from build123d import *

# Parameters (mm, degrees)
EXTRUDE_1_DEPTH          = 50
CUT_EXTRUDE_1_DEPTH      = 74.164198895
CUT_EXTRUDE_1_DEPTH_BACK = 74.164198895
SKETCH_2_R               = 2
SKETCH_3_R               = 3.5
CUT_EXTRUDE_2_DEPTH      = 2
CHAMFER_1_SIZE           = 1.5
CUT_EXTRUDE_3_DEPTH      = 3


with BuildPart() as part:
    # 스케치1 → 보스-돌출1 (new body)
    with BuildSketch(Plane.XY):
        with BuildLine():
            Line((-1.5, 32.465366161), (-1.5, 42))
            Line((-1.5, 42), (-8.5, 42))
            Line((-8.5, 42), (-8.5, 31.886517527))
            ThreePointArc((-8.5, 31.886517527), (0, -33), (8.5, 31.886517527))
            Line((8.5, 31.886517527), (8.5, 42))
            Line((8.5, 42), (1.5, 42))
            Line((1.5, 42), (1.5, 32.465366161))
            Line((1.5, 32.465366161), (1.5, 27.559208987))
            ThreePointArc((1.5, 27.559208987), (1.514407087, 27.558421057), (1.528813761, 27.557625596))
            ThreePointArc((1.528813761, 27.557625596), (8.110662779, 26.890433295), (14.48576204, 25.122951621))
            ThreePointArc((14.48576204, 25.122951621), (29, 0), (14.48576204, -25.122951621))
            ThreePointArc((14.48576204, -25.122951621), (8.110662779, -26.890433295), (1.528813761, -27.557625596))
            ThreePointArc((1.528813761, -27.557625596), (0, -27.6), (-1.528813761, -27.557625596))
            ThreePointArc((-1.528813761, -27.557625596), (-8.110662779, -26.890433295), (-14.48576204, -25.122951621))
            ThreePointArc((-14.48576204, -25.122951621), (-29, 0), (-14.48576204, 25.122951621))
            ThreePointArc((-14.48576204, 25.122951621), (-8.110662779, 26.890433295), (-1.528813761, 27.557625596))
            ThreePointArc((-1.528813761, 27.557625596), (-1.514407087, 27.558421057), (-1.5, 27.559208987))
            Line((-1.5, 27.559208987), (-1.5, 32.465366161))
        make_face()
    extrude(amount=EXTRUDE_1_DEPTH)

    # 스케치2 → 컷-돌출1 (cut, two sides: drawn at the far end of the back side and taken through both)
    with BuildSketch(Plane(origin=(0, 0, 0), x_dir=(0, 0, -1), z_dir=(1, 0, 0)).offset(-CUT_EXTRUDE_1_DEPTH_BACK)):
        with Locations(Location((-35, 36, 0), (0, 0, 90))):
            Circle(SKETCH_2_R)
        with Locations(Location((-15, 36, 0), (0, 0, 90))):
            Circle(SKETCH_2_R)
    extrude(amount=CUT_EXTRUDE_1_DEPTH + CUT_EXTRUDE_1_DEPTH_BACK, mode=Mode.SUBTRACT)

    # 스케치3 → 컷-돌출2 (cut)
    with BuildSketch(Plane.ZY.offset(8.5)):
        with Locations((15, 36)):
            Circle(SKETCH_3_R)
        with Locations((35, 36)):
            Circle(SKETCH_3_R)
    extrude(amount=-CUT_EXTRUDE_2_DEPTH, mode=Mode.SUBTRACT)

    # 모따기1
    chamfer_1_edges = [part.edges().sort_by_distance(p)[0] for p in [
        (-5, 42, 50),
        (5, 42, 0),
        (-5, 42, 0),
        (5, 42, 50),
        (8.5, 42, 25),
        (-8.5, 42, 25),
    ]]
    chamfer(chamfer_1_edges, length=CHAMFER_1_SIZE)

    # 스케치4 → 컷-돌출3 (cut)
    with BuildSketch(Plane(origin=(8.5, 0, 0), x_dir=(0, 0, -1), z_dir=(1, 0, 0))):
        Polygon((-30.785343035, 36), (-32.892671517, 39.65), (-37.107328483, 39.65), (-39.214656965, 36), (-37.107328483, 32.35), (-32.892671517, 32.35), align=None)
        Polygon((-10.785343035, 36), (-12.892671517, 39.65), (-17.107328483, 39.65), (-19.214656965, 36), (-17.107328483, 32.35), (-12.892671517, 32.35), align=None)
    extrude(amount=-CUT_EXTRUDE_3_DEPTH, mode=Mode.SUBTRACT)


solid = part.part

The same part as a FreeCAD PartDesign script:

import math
import FreeCAD as App
import Part
import Sketcher

V = App.Vector
Q = App.Units.Quantity


def edges_at(feature, points):
    """Names of the edges that pass closest to the given points."""
    edges = feature.Shape.Edges
    near = lambda p: min(range(len(edges)), key=lambda i: edges[i].distToShape(Part.Vertex(*p))[0])
    return sorted({f"Edge{near(p) + 1}" for p in points})


def add_polygon(sketch, points):
    """Adds a closed chain of lines whose ends are joined by coincident constraints."""
    first, n = sketch.GeometryCount, len(points)
    for a, b in zip(points, points[1:] + points[:1]):
        sketch.addGeometry(Part.LineSegment(App.Vector(*a, 0), App.Vector(*b, 0)), False)
    for i in range(n):
        sketch.addConstraint(Sketcher.Constraint("Coincident", first + i, 2, first + (i + 1) % n, 1))

doc = App.newDocument("Part")
body = doc.addObject("PartDesign::Body", "Body")

sketch1 = body.newObject("Sketcher::SketchObject", "Sketch")
sketch1.AttachmentSupport = (doc.getObject("XY_Plane"), [""])
sketch1.MapMode = "FlatFace"
sketch1.addGeometry([
    Part.LineSegment(V(-1.5, 42, 0), V(-8.5, 42, 0)),
    Part.LineSegment(V(-8.5, 42, 0), V(-8.5, 31.886518, 0)),
    Part.ArcOfCircle(Part.Circle(V(0, 0, 0), V(0, 0, 1), 33), math.radians(104.926265), math.radians(435.073735)),
    Part.LineSegment(V(8.5, 31.886518, 0), V(8.5, 42, 0)),
    Part.LineSegment(V(8.5, 42, 0), V(1.5, 42, 0)),
    Part.LineSegment(V(1.5, 42, 0), V(1.5, 27.559209, 0)),
    Part.ArcOfCircle(Part.Circle(V(-0.000124, -0.002262, 0), V(0, 0, 1), 27.602265), math.radians(86.824661), math.radians(86.884562)),
    Part.ArcOfCircle(Part.Circle(V(0.891328, -11.52972, 0), V(0, 0, 1), 39.092544), math.radians(69.65024), math.radians(89.065631)),
    Part.ArcOfCircle(Part.Circle(V(0, 0, 0), V(0, 0, 1), 29), math.radians(-60.032477), math.radians(60.032477)),
    Part.ArcOfCircle(Part.Circle(V(0.891328, 11.52972, 0), V(0, 0, 1), 39.092544), math.radians(-89.065631), math.radians(-69.65024)),
    Part.ArcOfCircle(Part.Circle(V(0, 0, 0), V(0, 0, 1), 27.6), math.radians(-93.175342), math.radians(-86.824658)),
    Part.ArcOfCircle(Part.Circle(V(-0.891328, 11.52972, 0), V(0, 0, 1), 39.092544), math.radians(-110.34976), math.radians(-90.934369)),
    Part.ArcOfCircle(Part.Circle(V(0, 0, 0), V(0, 0, 1), 29), math.radians(119.967523), math.radians(240.032477)),
    Part.ArcOfCircle(Part.Circle(V(-0.891328, -11.52972, 0), V(0, 0, 1), 39.092544), math.radians(90.934369), math.radians(110.34976)),
    Part.ArcOfCircle(Part.Circle(V(0.000124, -0.002262, 0), V(0, 0, 1), 27.602265), math.radians(93.115438), math.radians(93.175339)),
    Part.LineSegment(V(-1.5, 27.559209, 0), V(-1.5, 42, 0)),
], False)
sketch1.addConstraint([
    Sketcher.Constraint("Coincident", 0, 2, 1, 1),
    Sketcher.Constraint("Coincident", 1, 2, 2, 1),
    Sketcher.Constraint("Coincident", 2, 2, 3, 1),
    Sketcher.Constraint("Coincident", 3, 2, 4, 1),
    Sketcher.Constraint("Coincident", 4, 2, 5, 1),
    Sketcher.Constraint("Coincident", 5, 2, 6, 2),
    Sketcher.Constraint("Coincident", 6, 1, 7, 2),
    Sketcher.Constraint("Coincident", 7, 1, 8, 2),
    Sketcher.Constraint("Coincident", 8, 1, 9, 2),
    Sketcher.Constraint("Coincident", 9, 1, 10, 2),
    Sketcher.Constraint("Coincident", 10, 1, 11, 2),
    Sketcher.Constraint("Coincident", 11, 1, 12, 2),
    Sketcher.Constraint("Coincident", 12, 1, 13, 2),
    Sketcher.Constraint("Coincident", 13, 1, 14, 2),
    Sketcher.Constraint("Coincident", 14, 1, 15, 1),
    Sketcher.Constraint("Coincident", 15, 2, 0, 1),
    Sketcher.Constraint("Horizontal", 0),
    Sketcher.Constraint("Vertical", 1),
    Sketcher.Constraint("Vertical", 3),
    Sketcher.Constraint("Horizontal", 4),
    Sketcher.Constraint("Vertical", 5),
    Sketcher.Constraint("Vertical", 15),
    Sketcher.Constraint("Coincident", 2, 3, -1, 1),
    Sketcher.Constraint("Coincident", 8, 3, -1, 1),
    Sketcher.Constraint("Coincident", 10, 3, -1, 1),
    Sketcher.Constraint("Coincident", 12, 3, -1, 1),
    Sketcher.Constraint("Equal", 7, 9),
    Sketcher.Constraint("Equal", 9, 11),
    Sketcher.Constraint("Equal", 8, 12),
    Sketcher.Constraint("Equal", 11, 13),
    Sketcher.Constraint("Equal", 6, 14),
    Sketcher.Constraint("Symmetric", 7, 3, 11, 3, -1, 1),
    Sketcher.Constraint("Symmetric", 9, 3, 13, 3, -1, 1),
    Sketcher.Constraint("Symmetric", 9, 3, 11, 3, -2),
    Sketcher.Constraint("Symmetric", 6, 3, 14, 3, -2),
    Sketcher.Constraint("Symmetric", 0, 2, 3, 2, -2),
    Sketcher.Constraint("Horizontal", 5, 2, 14, 1),
    Sketcher.Constraint("Vertical", 6, 1, 9, 1),
    Sketcher.Constraint("Radius", 2, Q("33 mm")),
    Sketcher.Constraint("Radius", 8, Q("29 mm")),
    Sketcher.Constraint("Radius", 10, Q("27.6 mm")),
    Sketcher.Constraint("DistanceX", 0, 2, 0, 1, Q("7 mm")),
    Sketcher.Constraint("DistanceY", -1, 1, 0, 2, Q("42 mm")),
    Sketcher.Constraint("DistanceX", 1, 2, 2, 2, Q("17 mm")),
    Sketcher.Constraint("Radius", 6, Q("27.602265 mm")),
    Sketcher.Constraint("Radius", 7, Q("39.092544 mm")),
    Sketcher.Constraint("DistanceY", 6, 3, -1, 1, Q("0.002262 mm")),
    Sketcher.Constraint("DistanceX", -1, 1, 7, 3, Q("0.891328 mm")),
    Sketcher.Constraint("DistanceY", 7, 3, -1, 1, Q("11.52972 mm")),
])
pad1 = body.newObject("PartDesign::Pad", "Pad")
pad1.Profile = sketch1
pad1.Length = 50

sketch2 = body.newObject("Sketcher::SketchObject", "Sketch001")
sketch2.AttachmentSupport = (doc.getObject("YZ_Plane"), [""])
sketch2.MapMode = "FlatFace"
sketch2.addGeometry([
    Part.Circle(V(36, 35, 0), V(0, 0, 1), 2),
    Part.Circle(V(36, 15, 0), V(0, 0, 1), 2),
], False)
sketch2.addConstraint([
    Sketcher.Constraint("Equal", 0, 1),
    Sketcher.Constraint("Vertical", 0, 3, 1, 3),
    Sketcher.Constraint("Diameter", 0, Q("4 mm")),
    Sketcher.Constraint("DistanceX", -1, 1, 0, 3, Q("36 mm")),
    Sketcher.Constraint("DistanceY", -1, 1, 0, 3, Q("35 mm")),
    Sketcher.Constraint("DistanceY", -1, 1, 1, 3, Q("15 mm")),
])
pocket1 = body.newObject("PartDesign::Pocket", "Pocket")
pocket1.Profile = sketch2
pocket1.Type = "ThroughAll"
pocket1.Midplane = True

sketch3 = body.newObject("Sketcher::SketchObject", "Sketch002")
sketch3.AttachmentSupport = (doc.getObject("YZ_Plane"), [""])
sketch3.MapMode = "FlatFace"
sketch3.AttachmentOffset = App.Placement(V(0, 0, -8.5), App.Rotation())
sketch3.addGeometry([
    Part.Circle(V(36, 15, 0), V(0, 0, 1), 3.5),
    Part.Circle(V(36, 35, 0), V(0, 0, 1), 3.5),
], False)
sketch3.addConstraint([
    Sketcher.Constraint("Equal", 0, 1),
    Sketcher.Constraint("Vertical", 0, 3, 1, 3),
    Sketcher.Constraint("Diameter", 0, Q("7 mm")),
    Sketcher.Constraint("DistanceX", -1, 1, 0, 3, Q("36 mm")),
    Sketcher.Constraint("DistanceY", -1, 1, 0, 3, Q("15 mm")),
    Sketcher.Constraint("DistanceY", -1, 1, 1, 3, Q("35 mm")),
])
pocket2 = body.newObject("PartDesign::Pocket", "Pocket001")
pocket2.Profile = sketch3
pocket2.Length = 2
pocket2.Reversed = True
doc.recompute()

chamfer = body.newObject("PartDesign::Chamfer", "Chamfer")
chamfer.Base = (pocket2, edges_at(pocket2, [
    (-5, 42, 50),
    (5, 42, 0),
    (-5, 42, 0),
    (5, 42, 50),
    (8.5, 42, 25),
    (-8.5, 42, 25),
]))
chamfer.Size = 1.5

sketch4 = body.newObject("Sketcher::SketchObject", "Sketch003")
sketch4.AttachmentSupport = (doc.getObject("YZ_Plane"), [""])
sketch4.MapMode = "FlatFace"
sketch4.AttachmentOffset = App.Placement(V(0, 0, 8.5), App.Rotation())
add_polygon(sketch4, [(36, 30.785343), (39.65, 32.892672), (39.65, 37.107328), (36, 39.214657), (32.35, 37.107328), (32.35, 32.892672)])
add_polygon(sketch4, [(36, 10.785343), (39.65, 12.892672), (39.65, 17.107328), (36, 19.214657), (32.35, 17.107328), (32.35, 12.892672)])
sketch4.addConstraint([
    Sketcher.Constraint("Vertical", 1),
    Sketcher.Constraint("Vertical", 4),
    Sketcher.Constraint("Vertical", 7),
    Sketcher.Constraint("Vertical", 10),
    Sketcher.Constraint("Parallel", 0, 3),
    Sketcher.Constraint("Parallel", 2, 5),
    Sketcher.Constraint("Parallel", 3, 6),
    Sketcher.Constraint("Parallel", 5, 8),
    Sketcher.Constraint("Parallel", 6, 9),
    Sketcher.Constraint("Parallel", 8, 11),
    Sketcher.Constraint("Horizontal", 1, 2, 3, 2),
    Sketcher.Constraint("Horizontal", 0, 2, 4, 2),
    Sketcher.Constraint("Horizontal", 7, 2, 9, 2),
    Sketcher.Constraint("Horizontal", 6, 2, 10, 2),
    Sketcher.Constraint("Vertical", 2, 2, 5, 2),
    Sketcher.Constraint("Vertical", 1, 2, 6, 2),
    Sketcher.Constraint("Vertical", 5, 2, 8, 2),
    Sketcher.Constraint("Equal", 4, 7),
    Sketcher.Constraint("Angle", 0, Q("30 deg")),
    Sketcher.Constraint("DistanceX", -1, 1, 2, 2, Q("36 mm")),
    Sketcher.Constraint("DistanceY", 6, 2, 0, 2, Q("20 mm")),
    Sketcher.Constraint("DistanceX", 3, 2, 1, 2, Q("7.3 mm")),
    Sketcher.Constraint("DistanceY", 1, 1, 1, 2, Q("4.214657 mm")),
    Sketcher.Constraint("DistanceY", -1, 1, 0, 2, Q("32.892672 mm")),
])
pocket3 = body.newObject("PartDesign::Pocket", "Pocket002")
pocket3.Profile = sketch4
pocket3.Length = 3

doc.recompute()
